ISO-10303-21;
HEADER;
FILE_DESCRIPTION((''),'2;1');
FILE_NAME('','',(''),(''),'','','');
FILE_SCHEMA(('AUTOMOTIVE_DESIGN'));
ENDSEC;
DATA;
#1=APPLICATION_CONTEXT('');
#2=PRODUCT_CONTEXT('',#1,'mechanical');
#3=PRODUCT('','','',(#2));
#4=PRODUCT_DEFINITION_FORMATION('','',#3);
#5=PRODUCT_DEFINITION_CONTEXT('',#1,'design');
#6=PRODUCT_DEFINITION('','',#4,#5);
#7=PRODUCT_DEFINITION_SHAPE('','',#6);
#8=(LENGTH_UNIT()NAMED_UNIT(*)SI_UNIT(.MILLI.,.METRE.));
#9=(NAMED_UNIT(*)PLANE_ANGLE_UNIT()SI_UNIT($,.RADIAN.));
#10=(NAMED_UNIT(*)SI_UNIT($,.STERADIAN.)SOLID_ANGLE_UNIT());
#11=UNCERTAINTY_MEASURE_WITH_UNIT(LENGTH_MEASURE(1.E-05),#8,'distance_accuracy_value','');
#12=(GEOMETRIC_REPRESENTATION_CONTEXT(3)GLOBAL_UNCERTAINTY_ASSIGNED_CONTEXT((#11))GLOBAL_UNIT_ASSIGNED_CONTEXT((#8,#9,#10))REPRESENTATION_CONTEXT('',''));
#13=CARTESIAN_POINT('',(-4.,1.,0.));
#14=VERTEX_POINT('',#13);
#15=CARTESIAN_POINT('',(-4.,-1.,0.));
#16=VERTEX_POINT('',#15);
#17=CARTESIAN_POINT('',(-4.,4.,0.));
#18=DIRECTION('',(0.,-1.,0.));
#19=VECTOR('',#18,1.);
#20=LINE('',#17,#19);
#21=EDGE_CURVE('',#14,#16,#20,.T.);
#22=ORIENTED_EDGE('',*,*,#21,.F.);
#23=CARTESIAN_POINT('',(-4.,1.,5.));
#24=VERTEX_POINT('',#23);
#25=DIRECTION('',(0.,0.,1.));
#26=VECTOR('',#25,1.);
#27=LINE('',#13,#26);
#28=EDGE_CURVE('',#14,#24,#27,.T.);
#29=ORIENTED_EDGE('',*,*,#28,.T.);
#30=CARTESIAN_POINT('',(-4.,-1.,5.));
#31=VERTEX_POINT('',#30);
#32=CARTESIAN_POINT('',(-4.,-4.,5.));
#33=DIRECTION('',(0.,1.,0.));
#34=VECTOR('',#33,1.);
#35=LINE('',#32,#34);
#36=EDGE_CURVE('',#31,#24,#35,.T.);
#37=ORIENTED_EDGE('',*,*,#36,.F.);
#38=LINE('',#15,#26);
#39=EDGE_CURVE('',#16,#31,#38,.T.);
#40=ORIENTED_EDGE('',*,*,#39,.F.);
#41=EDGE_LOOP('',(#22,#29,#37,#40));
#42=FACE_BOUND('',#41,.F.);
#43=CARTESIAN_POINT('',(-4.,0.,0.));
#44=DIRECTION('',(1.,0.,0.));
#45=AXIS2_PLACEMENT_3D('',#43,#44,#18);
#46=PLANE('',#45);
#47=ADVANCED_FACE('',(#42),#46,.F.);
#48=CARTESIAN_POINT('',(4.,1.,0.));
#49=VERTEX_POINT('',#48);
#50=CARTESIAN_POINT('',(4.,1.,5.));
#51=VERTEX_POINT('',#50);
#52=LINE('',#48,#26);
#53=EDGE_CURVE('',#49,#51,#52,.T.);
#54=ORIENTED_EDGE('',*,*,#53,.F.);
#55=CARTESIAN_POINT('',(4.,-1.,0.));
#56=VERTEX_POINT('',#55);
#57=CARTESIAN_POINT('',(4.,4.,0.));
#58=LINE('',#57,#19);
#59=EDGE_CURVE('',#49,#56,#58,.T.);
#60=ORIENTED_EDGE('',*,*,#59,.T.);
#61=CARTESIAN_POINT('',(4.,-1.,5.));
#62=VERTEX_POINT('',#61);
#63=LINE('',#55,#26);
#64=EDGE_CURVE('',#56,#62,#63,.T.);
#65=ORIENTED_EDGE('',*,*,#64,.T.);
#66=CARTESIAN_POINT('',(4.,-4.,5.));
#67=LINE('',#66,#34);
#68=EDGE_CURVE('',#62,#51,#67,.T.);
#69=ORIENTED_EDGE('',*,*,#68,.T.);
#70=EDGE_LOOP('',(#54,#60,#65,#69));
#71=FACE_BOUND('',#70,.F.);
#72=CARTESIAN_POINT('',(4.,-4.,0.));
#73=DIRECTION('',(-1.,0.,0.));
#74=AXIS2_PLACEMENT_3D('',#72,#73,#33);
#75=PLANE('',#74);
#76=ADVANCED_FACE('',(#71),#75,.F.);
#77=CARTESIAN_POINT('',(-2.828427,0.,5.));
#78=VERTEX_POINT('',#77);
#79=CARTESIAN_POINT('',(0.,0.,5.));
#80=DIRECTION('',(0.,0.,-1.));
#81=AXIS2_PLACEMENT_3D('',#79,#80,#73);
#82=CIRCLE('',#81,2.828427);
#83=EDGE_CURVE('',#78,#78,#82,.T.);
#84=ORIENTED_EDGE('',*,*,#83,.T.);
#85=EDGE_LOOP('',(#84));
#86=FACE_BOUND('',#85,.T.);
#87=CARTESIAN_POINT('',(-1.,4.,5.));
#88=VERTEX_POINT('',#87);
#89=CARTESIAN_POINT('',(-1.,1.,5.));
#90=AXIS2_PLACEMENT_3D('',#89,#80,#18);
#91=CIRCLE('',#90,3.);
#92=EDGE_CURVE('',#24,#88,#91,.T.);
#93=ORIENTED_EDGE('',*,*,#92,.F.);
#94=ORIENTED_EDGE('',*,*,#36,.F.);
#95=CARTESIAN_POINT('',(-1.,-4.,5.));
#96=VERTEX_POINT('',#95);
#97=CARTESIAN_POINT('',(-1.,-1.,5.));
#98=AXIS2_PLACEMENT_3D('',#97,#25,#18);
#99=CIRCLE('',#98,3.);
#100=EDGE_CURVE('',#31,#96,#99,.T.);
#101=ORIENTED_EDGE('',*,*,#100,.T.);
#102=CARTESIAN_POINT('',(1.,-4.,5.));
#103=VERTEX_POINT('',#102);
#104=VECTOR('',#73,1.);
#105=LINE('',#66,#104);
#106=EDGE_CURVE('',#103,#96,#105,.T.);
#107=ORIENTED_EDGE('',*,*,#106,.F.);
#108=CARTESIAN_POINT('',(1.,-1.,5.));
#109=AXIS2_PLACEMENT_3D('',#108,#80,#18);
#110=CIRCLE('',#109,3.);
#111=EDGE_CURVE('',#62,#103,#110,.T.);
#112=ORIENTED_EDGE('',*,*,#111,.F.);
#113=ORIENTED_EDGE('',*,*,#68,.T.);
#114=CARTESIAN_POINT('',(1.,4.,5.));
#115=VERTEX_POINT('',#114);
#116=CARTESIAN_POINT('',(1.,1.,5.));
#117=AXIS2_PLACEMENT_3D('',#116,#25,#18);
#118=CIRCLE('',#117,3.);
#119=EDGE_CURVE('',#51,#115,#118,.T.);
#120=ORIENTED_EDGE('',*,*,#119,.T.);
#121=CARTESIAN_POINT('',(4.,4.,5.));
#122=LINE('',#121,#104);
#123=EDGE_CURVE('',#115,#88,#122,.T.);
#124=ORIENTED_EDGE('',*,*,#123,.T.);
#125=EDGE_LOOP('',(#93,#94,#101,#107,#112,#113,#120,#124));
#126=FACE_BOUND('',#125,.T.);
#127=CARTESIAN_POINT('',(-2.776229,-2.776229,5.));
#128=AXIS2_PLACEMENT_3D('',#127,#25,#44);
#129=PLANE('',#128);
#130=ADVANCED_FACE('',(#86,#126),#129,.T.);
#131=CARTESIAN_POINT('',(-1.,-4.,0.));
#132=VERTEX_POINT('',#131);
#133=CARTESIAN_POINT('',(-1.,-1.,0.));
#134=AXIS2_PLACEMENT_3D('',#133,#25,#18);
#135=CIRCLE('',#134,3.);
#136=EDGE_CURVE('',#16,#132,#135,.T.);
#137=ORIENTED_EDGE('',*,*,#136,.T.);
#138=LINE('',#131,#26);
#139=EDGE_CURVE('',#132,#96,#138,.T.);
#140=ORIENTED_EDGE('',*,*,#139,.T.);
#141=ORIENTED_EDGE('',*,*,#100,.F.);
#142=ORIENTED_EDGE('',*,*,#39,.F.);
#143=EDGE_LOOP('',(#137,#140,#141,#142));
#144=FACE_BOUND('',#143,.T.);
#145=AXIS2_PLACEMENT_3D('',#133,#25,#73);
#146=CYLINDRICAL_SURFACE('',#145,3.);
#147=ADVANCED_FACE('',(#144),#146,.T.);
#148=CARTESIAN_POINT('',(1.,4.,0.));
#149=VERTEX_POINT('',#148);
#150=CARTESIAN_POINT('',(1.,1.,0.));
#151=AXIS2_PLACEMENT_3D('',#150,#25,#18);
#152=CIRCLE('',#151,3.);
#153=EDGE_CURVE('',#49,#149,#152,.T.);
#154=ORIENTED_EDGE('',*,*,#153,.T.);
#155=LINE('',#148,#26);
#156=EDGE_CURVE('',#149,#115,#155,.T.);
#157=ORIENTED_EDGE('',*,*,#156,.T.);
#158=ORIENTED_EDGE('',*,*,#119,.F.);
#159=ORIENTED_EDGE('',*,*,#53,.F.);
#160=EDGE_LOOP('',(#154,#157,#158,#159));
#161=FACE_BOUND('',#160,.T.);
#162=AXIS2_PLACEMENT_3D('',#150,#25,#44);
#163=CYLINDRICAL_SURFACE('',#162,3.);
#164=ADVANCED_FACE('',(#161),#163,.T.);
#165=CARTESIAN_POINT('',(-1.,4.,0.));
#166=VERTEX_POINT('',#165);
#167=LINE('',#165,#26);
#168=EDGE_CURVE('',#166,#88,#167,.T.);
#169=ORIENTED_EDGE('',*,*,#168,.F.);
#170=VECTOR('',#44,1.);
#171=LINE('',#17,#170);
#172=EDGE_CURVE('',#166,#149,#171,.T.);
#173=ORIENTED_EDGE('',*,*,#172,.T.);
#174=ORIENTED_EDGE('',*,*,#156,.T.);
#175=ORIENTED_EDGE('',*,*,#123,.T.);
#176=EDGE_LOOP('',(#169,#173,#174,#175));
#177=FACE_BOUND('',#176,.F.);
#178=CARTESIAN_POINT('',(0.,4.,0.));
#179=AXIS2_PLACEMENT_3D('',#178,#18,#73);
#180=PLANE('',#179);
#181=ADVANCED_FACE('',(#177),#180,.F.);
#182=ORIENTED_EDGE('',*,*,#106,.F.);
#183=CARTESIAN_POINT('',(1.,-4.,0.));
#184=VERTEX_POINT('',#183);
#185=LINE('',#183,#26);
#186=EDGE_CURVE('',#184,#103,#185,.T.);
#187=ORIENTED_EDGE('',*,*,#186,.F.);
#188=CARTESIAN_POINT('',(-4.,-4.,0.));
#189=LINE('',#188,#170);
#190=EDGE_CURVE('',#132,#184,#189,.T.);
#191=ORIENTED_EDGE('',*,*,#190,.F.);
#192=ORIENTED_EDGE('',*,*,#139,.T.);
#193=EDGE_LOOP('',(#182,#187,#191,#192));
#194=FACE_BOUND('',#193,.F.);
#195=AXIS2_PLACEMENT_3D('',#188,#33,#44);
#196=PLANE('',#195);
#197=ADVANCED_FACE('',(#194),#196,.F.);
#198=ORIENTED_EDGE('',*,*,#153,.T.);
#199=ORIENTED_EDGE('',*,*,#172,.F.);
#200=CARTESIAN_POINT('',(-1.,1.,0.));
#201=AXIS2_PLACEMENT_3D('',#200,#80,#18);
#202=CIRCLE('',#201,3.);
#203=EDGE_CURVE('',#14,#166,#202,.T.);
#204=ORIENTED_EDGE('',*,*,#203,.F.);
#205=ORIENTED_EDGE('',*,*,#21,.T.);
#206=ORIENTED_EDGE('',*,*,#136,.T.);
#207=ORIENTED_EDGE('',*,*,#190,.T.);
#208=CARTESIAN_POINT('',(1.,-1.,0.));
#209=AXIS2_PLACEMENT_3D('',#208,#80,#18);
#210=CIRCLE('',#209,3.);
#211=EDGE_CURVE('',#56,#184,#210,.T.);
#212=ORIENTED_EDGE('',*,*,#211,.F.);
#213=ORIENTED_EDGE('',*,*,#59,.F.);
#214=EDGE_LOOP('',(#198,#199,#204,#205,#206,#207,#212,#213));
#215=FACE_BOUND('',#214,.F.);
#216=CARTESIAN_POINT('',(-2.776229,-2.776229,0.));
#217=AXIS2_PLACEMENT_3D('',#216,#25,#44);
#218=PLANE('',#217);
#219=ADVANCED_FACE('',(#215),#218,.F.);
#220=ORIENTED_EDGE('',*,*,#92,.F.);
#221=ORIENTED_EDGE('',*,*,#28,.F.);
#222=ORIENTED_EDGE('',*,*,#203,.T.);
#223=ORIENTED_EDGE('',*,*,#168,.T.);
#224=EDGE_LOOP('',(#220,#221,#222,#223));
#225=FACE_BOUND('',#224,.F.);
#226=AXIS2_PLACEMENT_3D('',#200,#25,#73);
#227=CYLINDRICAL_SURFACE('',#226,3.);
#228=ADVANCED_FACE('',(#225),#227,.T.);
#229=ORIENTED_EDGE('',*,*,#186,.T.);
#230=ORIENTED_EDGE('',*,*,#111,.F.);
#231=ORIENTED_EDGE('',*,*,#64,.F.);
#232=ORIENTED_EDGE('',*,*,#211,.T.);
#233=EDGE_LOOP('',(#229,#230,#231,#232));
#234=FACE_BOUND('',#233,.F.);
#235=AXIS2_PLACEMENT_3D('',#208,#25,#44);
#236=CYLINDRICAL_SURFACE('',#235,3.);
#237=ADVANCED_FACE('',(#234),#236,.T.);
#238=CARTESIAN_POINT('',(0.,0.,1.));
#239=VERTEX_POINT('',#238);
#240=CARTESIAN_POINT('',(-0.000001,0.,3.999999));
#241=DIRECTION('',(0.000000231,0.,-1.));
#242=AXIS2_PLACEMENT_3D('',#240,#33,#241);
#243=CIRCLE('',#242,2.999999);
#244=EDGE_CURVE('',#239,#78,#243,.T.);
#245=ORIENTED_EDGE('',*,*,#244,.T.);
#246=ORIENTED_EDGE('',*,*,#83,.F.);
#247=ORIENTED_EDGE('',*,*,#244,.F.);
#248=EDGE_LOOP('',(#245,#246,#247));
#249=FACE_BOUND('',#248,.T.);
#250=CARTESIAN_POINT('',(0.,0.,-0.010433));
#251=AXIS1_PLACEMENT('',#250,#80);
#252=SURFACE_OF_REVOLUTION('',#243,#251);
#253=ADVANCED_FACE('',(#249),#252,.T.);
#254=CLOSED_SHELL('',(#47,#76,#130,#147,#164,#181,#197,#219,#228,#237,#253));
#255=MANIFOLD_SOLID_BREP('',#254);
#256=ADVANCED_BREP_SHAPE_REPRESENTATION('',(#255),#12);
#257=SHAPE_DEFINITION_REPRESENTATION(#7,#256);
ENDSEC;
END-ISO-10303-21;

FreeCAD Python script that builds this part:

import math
import FreeCAD as App
import Part
import Sketcher
from FreeCAD import Vector
Q = App.Units.Quantity


def edges_at(feature, points):
    """Names of the edges that pass closest to the given points."""
    edges = feature.Shape.Edges
    near = lambda p: min(range(len(edges)), key=lambda i: edges[i].distToShape(Part.Vertex(*p))[0])
    return sorted({f"Edge{near(p) + 1}" for p in points})

doc = App.newDocument("Part")
params = doc.addObject("Spreadsheet::Sheet", "Params")
for row, (alias, value) in enumerate([
    ("sketch1_radius", "2.999999 mm"),
    ("sketch1_width", "4 mm"),
    ("sketch1_height", "5 mm"),
    ("sketch1_height2", "1 mm"),
    ("revolution_angle", "360 deg"),
    ("sketch2_radius", "4 mm"),
    ("pad1_length", "5 mm"),
    ("fillet_radius", "3 mm"),
], start=1):
    params.set(f"A{row}", alias)
    params.set(f"B{row}", "=" + value)
    params.setAlias(f"B{row}", alias)

body = doc.addObject("PartDesign::Body", "Body")

# Sketch on XZ plane
sketch1 = doc.addObject("Sketcher::SketchObject", "Sketch")
body.addObject(sketch1)
sketch1.AttachmentSupport = (doc.XZ_Plane, [""])
sketch1.MapMode = "FlatFace"
sketch1.addGeometry([
    Part.ArcOfCircle(Part.Circle(Vector(-0.000001, 3.999999, 0), Vector(0, 0, 1), 2.999999), math.radians(160.528764), math.radians(270.000013)),  # 0
    Part.LineSegment(Vector(-2.828427, 5, 0), Vector(-4, 5, 0)),  # 1
    Part.LineSegment(Vector(-4, 5, 0), Vector(-4, 0, 0)),  # 2
    Part.LineSegment(Vector(-4, 0, 0), Vector(0, 0, 0)),  # 3
    Part.LineSegment(Vector(0, 0, 0), Vector(0, 1, 0)),  # 4
], False)
sketch1.addConstraint([
    Sketcher.Constraint("Coincident", 0, 1, 1, 1),
    Sketcher.Constraint("Coincident", 1, 2, 2, 1),
    Sketcher.Constraint("Coincident", 2, 2, 3, 1),
    Sketcher.Constraint("Coincident", 3, 2, 4, 1),
    Sketcher.Constraint("Coincident", 4, 2, 0, 2),
    Sketcher.Constraint("Horizontal", 1),
    Sketcher.Constraint("Vertical", 2),
    Sketcher.Constraint("Horizontal", 3),
    Sketcher.Constraint("Vertical", 4),
    Sketcher.Constraint("Coincident", 3, 2, -1, 1),
    Sketcher.Constraint("PointOnObject", 0, 3, -2),
    Sketcher.Constraint("Radius", 0, Q("2.999999 mm")),
    Sketcher.Constraint("DistanceX", 3, 1, 3, 2, Q("4 mm")),
    Sketcher.Constraint("DistanceY", 2, 2, 2, 1, Q("5 mm")),
    Sketcher.Constraint("DistanceY", 4, 1, 4, 2, Q("1 mm")),
])
sketch1.setExpression("Constraints[11]", "Params.sketch1_radius")
sketch1.setExpression("Constraints[12]", "Params.sketch1_width")
sketch1.setExpression("Constraints[13]", "Params.sketch1_height")
sketch1.setExpression("Constraints[14]", "Params.sketch1_height2")
revolution = doc.addObject("PartDesign::Revolution", "Revolution")
body.addObject(revolution)
revolution.Profile = sketch1
revolution.ReferenceAxis = (sketch1, ["V_Axis"])
revolution.setExpression("Angle", "Params.revolution_angle")

# Sketch on XY plane
sketch2 = doc.addObject("Sketcher::SketchObject", "Sketch001")
body.addObject(sketch2)
sketch2.AttachmentSupport = (doc.XY_Plane, [""])
sketch2.MapMode = "FlatFace"
sketch2.addGeometry([
    Part.ArcOfCircle(Part.Circle(Vector(0, 0, 0), Vector(0, 0, 1), 4), math.radians(-179.999994), math.radians(-90.000006)),  # 0
    Part.LineSegment(Vector(-4, 0, 0), Vector(-4, -4, 0)),  # 1
    Part.LineSegment(Vector(-4, -4, 0), Vector(0, -4, 0)),  # 2
    Part.LineSegment(Vector(4, -4, 0), Vector(4, 0, 0)),  # 3
    Part.ArcOfCircle(Part.Circle(Vector(0, 0, 0), Vector(0, 0, 1), 4), math.radians(-89.999994), math.radians(-0.000006)),  # 4
    Part.LineSegment(Vector(0, -4, 0), Vector(4, -4, 0)),  # 5
    Part.LineSegment(Vector(4, 4, 0), Vector(0, 4, 0)),  # 6
    Part.ArcOfCircle(Part.Circle(Vector(0, 0, 0), Vector(0, 0, 1), 4), math.radians(0.000006), math.radians(89.999994)),  # 7
    Part.LineSegment(Vector(4, 0, 0), Vector(4, 4, 0)),  # 8
    Part.LineSegment(Vector(0, 4, 0), Vector(-4, 4, 0)),  # 9
    Part.LineSegment(Vector(-4, 4, 0), Vector(-4, 0, 0)),  # 10
    Part.ArcOfCircle(Part.Circle(Vector(0, 0, 0), Vector(0, 0, 1), 4), math.radians(90.000006), math.radians(179.999994)),  # 11
], False)
sketch2.addConstraint([
    Sketcher.Constraint("Tangent", 0, 1, 1, 1),
    Sketcher.Constraint("Coincident", 1, 2, 2, 1),
    Sketcher.Constraint("Tangent", 2, 2, 0, 2),
    Sketcher.Constraint("Tangent", 3, 2, 4, 2),
    Sketcher.Constraint("Tangent", 4, 1, 5, 1),
    Sketcher.Constraint("Coincident", 5, 2, 3, 1),
    Sketcher.Constraint("Tangent", 6, 2, 7, 2),
    Sketcher.Constraint("Tangent", 7, 1, 8, 1),
    Sketcher.Constraint("Coincident", 8, 2, 6, 1),
    Sketcher.Constraint("Coincident", 9, 2, 10, 1),
    Sketcher.Constraint("Tangent", 10, 2, 11, 2),
    Sketcher.Constraint("Tangent", 11, 1, 9, 1),
    Sketcher.Constraint("Vertical", 1),
    Sketcher.Constraint("Horizontal", 2),
    Sketcher.Constraint("Vertical", 3),
    Sketcher.Constraint("Horizontal", 5),
    Sketcher.Constraint("Horizontal", 6),
    Sketcher.Constraint("Vertical", 8),
    Sketcher.Constraint("Horizontal", 9),
    Sketcher.Constraint("Vertical", 10),
    Sketcher.Constraint("Coincident", 0, 3, -1, 1),
    Sketcher.Constraint("Coincident", 4, 3, -1, 1),
    Sketcher.Constraint("Coincident", 7, 3, -1, 1),
    Sketcher.Constraint("Coincident", 11, 3, -1, 1),
    Sketcher.Constraint("Equal", 0, 4),
    Sketcher.Constraint("Equal", 4, 7),
    Sketcher.Constraint("Equal", 7, 11),
    Sketcher.Constraint("Radius", 0, Q("4 mm")),
])
sketch2.setExpression("Constraints[27]", "Params.sketch2_radius")
pad1 = doc.addObject("PartDesign::Pad", "Pad")
body.addObject(pad1)
pad1.Profile = sketch2
pad1.setExpression("Length", "Params.pad1_length")
doc.recompute()

fillet = doc.addObject("PartDesign::Fillet", "Fillet")
body.addObject(fillet)
fillet.Base = (pad1, edges_at(pad1, [
    (4, -4, 2.5),
    (4, 4, 2.5),
    (-4, -4, 2.5),
    (-4, 4, 2.5),
]))
fillet.setExpression("Radius", "Params.fillet_radius")

doc.recompute()
